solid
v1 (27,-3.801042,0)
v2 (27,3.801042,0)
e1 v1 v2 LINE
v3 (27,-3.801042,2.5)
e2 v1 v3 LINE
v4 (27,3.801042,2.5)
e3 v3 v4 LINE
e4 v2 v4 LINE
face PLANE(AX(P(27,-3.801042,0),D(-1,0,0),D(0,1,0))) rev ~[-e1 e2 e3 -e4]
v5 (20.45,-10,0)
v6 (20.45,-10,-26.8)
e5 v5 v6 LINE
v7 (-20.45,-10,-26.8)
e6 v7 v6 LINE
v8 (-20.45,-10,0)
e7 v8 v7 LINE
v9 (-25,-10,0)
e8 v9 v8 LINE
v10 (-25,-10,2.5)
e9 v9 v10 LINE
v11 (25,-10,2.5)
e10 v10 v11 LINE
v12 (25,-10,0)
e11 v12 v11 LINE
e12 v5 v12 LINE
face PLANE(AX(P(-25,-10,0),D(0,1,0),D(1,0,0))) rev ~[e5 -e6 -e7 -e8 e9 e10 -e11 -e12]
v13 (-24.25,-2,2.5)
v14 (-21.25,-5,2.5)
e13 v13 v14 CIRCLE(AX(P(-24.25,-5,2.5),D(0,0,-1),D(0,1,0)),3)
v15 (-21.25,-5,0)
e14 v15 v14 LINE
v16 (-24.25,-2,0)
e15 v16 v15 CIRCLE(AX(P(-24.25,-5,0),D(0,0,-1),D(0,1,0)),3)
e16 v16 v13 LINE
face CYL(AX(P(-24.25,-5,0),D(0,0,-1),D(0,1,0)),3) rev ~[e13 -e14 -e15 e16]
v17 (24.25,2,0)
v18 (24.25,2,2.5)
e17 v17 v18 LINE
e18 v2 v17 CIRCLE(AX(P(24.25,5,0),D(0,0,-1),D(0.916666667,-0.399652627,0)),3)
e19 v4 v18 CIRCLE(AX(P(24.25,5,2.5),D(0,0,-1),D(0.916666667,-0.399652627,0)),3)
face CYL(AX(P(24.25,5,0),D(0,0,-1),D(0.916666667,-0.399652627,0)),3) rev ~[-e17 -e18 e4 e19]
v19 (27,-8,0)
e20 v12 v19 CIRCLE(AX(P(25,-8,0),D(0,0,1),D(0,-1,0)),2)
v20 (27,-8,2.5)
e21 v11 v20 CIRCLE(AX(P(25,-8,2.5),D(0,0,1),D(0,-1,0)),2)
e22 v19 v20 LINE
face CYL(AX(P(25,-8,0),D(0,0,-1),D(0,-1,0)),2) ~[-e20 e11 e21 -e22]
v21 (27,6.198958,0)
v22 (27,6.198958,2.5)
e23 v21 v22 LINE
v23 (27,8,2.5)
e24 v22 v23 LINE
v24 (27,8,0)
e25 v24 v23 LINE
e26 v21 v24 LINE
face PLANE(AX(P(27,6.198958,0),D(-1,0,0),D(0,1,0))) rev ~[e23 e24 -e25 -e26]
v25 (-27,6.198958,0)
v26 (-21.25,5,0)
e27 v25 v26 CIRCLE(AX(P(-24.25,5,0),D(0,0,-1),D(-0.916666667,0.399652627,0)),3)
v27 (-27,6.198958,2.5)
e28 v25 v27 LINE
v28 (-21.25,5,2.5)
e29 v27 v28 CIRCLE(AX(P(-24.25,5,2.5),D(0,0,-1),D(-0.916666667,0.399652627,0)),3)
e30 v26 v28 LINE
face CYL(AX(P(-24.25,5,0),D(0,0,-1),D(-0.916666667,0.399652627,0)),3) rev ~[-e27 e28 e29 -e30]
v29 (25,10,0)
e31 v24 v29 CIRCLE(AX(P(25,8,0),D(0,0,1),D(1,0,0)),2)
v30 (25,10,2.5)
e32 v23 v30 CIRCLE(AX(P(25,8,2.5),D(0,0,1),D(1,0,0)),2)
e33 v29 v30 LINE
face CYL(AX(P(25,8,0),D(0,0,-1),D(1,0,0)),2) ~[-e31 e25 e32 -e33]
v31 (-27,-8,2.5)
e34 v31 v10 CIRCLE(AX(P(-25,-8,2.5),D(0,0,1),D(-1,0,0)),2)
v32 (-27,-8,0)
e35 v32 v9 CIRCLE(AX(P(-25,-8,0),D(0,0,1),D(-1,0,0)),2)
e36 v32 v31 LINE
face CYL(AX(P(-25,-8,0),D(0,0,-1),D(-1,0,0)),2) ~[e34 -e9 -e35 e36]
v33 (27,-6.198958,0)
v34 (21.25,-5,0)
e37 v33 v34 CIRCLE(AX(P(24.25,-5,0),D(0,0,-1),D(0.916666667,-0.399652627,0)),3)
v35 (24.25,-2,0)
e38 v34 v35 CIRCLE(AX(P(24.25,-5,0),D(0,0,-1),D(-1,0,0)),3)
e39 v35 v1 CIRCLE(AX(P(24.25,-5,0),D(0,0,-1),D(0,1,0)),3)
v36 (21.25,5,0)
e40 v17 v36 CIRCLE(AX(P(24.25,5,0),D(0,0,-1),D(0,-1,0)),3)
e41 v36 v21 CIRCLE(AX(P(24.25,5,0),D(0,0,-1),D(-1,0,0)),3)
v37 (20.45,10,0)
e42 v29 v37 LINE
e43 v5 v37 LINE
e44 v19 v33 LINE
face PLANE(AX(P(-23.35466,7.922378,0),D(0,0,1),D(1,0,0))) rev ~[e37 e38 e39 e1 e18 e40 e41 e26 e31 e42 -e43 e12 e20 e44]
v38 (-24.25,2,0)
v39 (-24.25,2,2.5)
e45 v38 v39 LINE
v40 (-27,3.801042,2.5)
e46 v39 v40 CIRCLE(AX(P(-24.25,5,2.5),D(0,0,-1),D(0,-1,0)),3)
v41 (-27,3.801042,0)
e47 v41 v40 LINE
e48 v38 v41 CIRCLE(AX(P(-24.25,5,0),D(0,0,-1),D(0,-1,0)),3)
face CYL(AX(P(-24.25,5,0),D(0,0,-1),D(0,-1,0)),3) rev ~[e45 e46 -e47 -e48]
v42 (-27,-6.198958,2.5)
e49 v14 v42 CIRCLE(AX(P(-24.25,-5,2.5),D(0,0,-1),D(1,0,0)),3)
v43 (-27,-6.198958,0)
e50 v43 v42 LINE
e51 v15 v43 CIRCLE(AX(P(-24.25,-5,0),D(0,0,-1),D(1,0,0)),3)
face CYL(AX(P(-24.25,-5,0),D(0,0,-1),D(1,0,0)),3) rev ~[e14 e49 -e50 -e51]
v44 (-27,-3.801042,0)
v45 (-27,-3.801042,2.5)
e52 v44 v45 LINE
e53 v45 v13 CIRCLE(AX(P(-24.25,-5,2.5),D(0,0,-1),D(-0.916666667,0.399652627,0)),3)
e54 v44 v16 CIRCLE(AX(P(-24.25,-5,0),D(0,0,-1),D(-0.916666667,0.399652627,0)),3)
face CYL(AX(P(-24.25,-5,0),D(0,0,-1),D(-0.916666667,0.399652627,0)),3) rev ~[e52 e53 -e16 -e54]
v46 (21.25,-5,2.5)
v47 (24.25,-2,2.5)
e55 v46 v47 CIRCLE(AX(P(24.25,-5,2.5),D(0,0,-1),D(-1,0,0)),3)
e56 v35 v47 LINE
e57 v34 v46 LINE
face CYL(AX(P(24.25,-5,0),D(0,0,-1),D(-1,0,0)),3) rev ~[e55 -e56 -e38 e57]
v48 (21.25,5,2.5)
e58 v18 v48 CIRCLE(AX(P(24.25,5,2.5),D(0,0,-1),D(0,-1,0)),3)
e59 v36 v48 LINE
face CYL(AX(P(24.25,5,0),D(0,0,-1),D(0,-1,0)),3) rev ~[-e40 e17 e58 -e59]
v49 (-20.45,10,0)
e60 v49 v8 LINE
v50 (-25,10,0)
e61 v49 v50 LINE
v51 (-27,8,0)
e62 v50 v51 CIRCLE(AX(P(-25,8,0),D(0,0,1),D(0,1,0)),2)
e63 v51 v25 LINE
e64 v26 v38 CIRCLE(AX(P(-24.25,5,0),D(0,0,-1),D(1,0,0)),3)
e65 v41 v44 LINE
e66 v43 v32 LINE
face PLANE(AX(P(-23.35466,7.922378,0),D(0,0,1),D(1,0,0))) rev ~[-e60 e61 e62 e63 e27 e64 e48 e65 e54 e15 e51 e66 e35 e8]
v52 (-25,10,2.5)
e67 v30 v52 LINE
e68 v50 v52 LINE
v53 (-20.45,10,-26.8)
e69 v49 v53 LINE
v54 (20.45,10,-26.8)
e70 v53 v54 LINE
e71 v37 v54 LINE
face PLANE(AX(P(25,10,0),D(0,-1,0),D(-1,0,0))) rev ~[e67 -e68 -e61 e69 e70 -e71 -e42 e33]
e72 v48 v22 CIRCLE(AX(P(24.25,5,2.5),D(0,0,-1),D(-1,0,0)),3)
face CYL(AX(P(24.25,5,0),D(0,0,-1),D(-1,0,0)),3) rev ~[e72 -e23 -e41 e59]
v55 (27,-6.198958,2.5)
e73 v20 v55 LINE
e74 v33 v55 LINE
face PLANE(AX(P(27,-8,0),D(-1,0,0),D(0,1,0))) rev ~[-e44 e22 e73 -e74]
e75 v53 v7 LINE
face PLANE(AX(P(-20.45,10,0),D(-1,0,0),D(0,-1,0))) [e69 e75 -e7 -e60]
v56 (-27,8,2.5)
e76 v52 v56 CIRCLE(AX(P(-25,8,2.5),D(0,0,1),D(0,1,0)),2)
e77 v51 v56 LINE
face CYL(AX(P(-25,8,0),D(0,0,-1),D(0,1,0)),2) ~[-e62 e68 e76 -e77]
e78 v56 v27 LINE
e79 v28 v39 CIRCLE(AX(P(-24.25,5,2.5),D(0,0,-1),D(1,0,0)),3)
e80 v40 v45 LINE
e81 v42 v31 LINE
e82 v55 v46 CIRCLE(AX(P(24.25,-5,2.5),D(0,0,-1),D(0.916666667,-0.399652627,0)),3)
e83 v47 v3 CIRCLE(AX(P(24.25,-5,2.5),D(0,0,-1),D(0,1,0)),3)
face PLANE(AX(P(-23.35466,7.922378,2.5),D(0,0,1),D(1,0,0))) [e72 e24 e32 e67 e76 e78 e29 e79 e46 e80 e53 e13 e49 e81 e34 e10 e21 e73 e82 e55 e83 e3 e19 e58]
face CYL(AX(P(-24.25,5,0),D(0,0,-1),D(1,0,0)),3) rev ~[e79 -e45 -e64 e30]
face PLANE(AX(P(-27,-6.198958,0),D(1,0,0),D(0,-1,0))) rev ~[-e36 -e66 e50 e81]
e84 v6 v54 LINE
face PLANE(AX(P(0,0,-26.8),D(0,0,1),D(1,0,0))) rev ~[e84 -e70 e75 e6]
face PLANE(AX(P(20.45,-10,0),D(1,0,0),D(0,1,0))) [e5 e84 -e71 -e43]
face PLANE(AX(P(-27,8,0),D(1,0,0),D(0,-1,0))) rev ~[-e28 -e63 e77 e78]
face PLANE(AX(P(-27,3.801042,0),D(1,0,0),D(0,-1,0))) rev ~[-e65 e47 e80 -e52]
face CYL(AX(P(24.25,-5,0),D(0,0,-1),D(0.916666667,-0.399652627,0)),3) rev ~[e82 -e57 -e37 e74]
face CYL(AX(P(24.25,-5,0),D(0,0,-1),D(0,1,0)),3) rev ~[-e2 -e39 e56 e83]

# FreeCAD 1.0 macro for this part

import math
import FreeCAD as App
import Part
import Sketcher

doc = App.newDocument("Part")
body = doc.addObject("PartDesign::Body", "Body")

# Sketch on XY plane
sketch1 = body.newObject("Sketcher::SketchObject", "Sketch")
sketch1.AttachmentSupport = (doc.getObject("XY_Plane"), [""])
sketch1.MapMode = "FlatFace"
sketch1.addGeometry([
    Part.LineSegment(App.Vector(-20, -10, 0), App.Vector(20, -10, 0)),
    Part.LineSegment(App.Vector(20, -10, 0), App.Vector(20, 10, 0)),
    Part.LineSegment(App.Vector(20, 10, 0), App.Vector(-20, 10, 0)),
    Part.LineSegment(App.Vector(-20, 10, 0), App.Vector(-20, -10, 0)),
], False)
sketch1.addConstraint([
    Sketcher.Constraint("Coincident", 0, 2, 1, 1),
    Sketcher.Constraint("Coincident", 1, 2, 2, 1),
    Sketcher.Constraint("Coincident", 2, 2, 3, 1),
    Sketcher.Constraint("Coincident", 3, 2, 0, 1),
    Sketcher.Constraint("Horizontal", 0),
    Sketcher.Constraint("Vertical", 1),
    Sketcher.Constraint("Horizontal", 2),
    Sketcher.Constraint("Vertical", 3),
    Sketcher.Constraint("Symmetric", 0, 2, 2, 2, -1, 1),
    Sketcher.Constraint("DistanceY", 1, 1, 1, 2, 20.0),
    Sketcher.Constraint("DistanceX", 0, 1, 0, 2, 40.9),
])
pad1 = body.newObject("PartDesign::Pad", "Pad")
pad1.Profile = sketch1
pad1.Length = 26.8
pad1.Reversed = True

# Sketch on XY plane
sketch2 = body.newObject("Sketcher::SketchObject", "Sketch001")
sketch2.AttachmentSupport = (doc.getObject("XY_Plane"), [""])
sketch2.MapMode = "FlatFace"
sketch2.addGeometry([
    Part.ArcOfCircle(Part.Circle(App.Vector(-25, 8, 0), App.Vector(0, 0, 1), 2), math.radians(90), math.radians(180)),  # 0
    Part.LineSegment(App.Vector(-27, 8, 0), App.Vector(-27, 6.2, 0)),  # 1
    Part.ArcOfCircle(Part.Circle(App.Vector(-24.2, 5, 0), App.Vector(0, 0, 1), 3), math.radians(0), math.radians(156)),  # 2
    Part.ArcOfCircle(Part.Circle(App.Vector(-24.2, 5, 0), App.Vector(0, 0, 1), 3), math.radians(-90), math.radians(0)),  # 3
    Part.ArcOfCircle(Part.Circle(App.Vector(-24.2, 5, 0), App.Vector(0, 0, 1), 3), math.radians(-156), math.radians(-90)),  # 4
    Part.LineSegment(App.Vector(-27, 3.8, 0), App.Vector(-27, -3.8, 0)),  # 5
    Part.ArcOfCircle(Part.Circle(App.Vector(-24.2, -5, 0), App.Vector(0, 0, 1), 3), math.radians(90), math.radians(156)),  # 6
    Part.ArcOfCircle(Part.Circle(App.Vector(-24.2, -5, 0), App.Vector(0, 0, 1), 3), math.radians(0), math.radians(90)),  # 7
    Part.ArcOfCircle(Part.Circle(App.Vector(-24.2, -5, 0), App.Vector(0, 0, 1), 3), math.radians(-156), math.radians(0)),  # 8
    Part.LineSegment(App.Vector(-27, -6.2, 0), App.Vector(-27, -8, 0)),  # 9
    Part.ArcOfCircle(Part.Circle(App.Vector(-25, -8, 0), App.Vector(0, 0, 1), 2), math.radians(180), math.radians(270)),  # 10
    Part.LineSegment(App.Vector(-25, -10, 0), App.Vector(25, -10, 0)),  # 11
    Part.ArcOfCircle(Part.Circle(App.Vector(25, -8, 0), App.Vector(0, 0, 1), 2), math.radians(-90), math.radians(0)),  # 12
    Part.LineSegment(App.Vector(27, -8, 0), App.Vector(27, -6.2, 0)),  # 13
    Part.ArcOfCircle(Part.Circle(App.Vector(24.2, -5, 0), App.Vector(0, 0, 1), 3), math.radians(180), math.radians(336)),  # 14
    Part.ArcOfCircle(Part.Circle(App.Vector(24.2, -5, 0), App.Vector(0, 0, 1), 3), math.radians(90), math.radians(180)),  # 15
    Part.ArcOfCircle(Part.Circle(App.Vector(24.2, -5, 0), App.Vector(0, 0, 1), 3), math.radians(24), math.radians(90)),  # 16
    Part.LineSegment(App.Vector(27, -3.8, 0), App.Vector(27, 3.8, 0)),  # 17
    Part.ArcOfCircle(Part.Circle(App.Vector(24.2, 5, 0), App.Vector(0, 0, 1), 3), math.radians(-90), math.radians(-24)),  # 18
    Part.ArcOfCircle(Part.Circle(App.Vector(24.2, 5, 0), App.Vector(0, 0, 1), 3), math.radians(180), math.radians(270)),  # 19
    Part.ArcOfCircle(Part.Circle(App.Vector(24.2, 5, 0), App.Vector(0, 0, 1), 3), math.radians(24), math.radians(180)),  # 20
    Part.LineSegment(App.Vector(27, 6.2, 0), App.Vector(27, 8, 0)),  # 21
    Part.ArcOfCircle(Part.Circle(App.Vector(25, 8, 0), App.Vector(0, 0, 1), 2), math.radians(0), math.radians(90)),  # 22
    Part.LineSegment(App.Vector(25, 10, 0), App.Vector(-25, 10, 0)),  # 23
], False)
sketch2.addConstraint([
    Sketcher.Constraint("Tangent", 0, 2, 1, 1),
    Sketcher.Constraint("Coincident", 1, 2, 2, 2),
    Sketcher.Constraint("Tangent", 2, 1, 3, 2),
    Sketcher.Constraint("Tangent", 3, 1, 4, 2),
    Sketcher.Constraint("Coincident", 4, 1, 5, 1),
    Sketcher.Constraint("Coincident", 5, 2, 6, 2),
    Sketcher.Constraint("Tangent", 6, 1, 7, 2),
    Sketcher.Constraint("Tangent", 7, 1, 8, 2),
    Sketcher.Constraint("Coincident", 8, 1, 9, 1),
    Sketcher.Constraint("Tangent", 9, 2, 10, 1),
    Sketcher.Constraint("Tangent", 10, 2, 11, 1),
    Sketcher.Constraint("Tangent", 11, 2, 12, 1),
    Sketcher.Constraint("Tangent", 12, 2, 13, 1),
    Sketcher.Constraint("Coincident", 13, 2, 14, 2),
    Sketcher.Constraint("Tangent", 14, 1, 15, 2),
    Sketcher.Constraint("Tangent", 15, 1, 16, 2),
    Sketcher.Constraint("Coincident", 16, 1, 17, 1),
    Sketcher.Constraint("Coincident", 17, 2, 18, 2),
    Sketcher.Constraint("Tangent", 18, 1, 19, 2),
    Sketcher.Constraint("Tangent", 19, 1, 20, 2),
    Sketcher.Constraint("Coincident", 20, 1, 21, 1),
    Sketcher.Constraint("Tangent", 21, 2, 22, 1),
    Sketcher.Constraint("Tangent", 22, 2, 23, 1),
    Sketcher.Constraint("Tangent", 23, 2, 0, 1),
    Sketcher.Constraint("Vertical", 1),
    Sketcher.Constraint("Vertical", 5),
    Sketcher.Constraint("Vertical", 9),
    Sketcher.Constraint("Horizontal", 11),
    Sketcher.Constraint("Vertical", 13),
    Sketcher.Constraint("Vertical", 17),
    Sketcher.Constraint("Vertical", 21),
    Sketcher.Constraint("Horizontal", 23),
    Sketcher.Constraint("Coincident", 4, 3, 2, 3),
    Sketcher.Constraint("Coincident", 8, 3, 6, 3),
    Sketcher.Constraint("Coincident", 16, 3, 14, 3),
    Sketcher.Constraint("Coincident", 20, 3, 18, 3),
    Sketcher.Constraint("Equal", 4, 6),
    Sketcher.Constraint("Equal", 0, 10),
    Sketcher.Constraint("Equal", 10, 12),
    Sketcher.Constraint("Equal", 8, 14),
    Sketcher.Constraint("Equal", 16, 18),
    Sketcher.Constraint("Equal", 12, 22),
    Sketcher.Constraint("Symmetric", 0, 3, 12, 3, -1, 1),
    Sketcher.Constraint("Symmetric", 2, 3, 14, 3, -1, 1),
    Sketcher.Constraint("Symmetric", 6, 3, 18, 3, -1, 1),
    Sketcher.Constraint("Symmetric", 6, 3, 14, 3, -2),
    Sketcher.Constraint("Horizontal", 20, 3, 2, 1),
    Sketcher.Constraint("Horizontal", 16, 3, 7, 1),
    Sketcher.Constraint("Horizontal", 8, 1, 13, 2),
    Sketcher.Constraint("Horizontal", 7, 1, 14, 1),
    Sketcher.Constraint("Horizontal", 5, 2, 16, 1),
    Sketcher.Constraint("Horizontal", 2, 1, 19, 1),
    Sketcher.Constraint("Horizontal", 1, 2, 20, 1),
    Sketcher.Constraint("Vertical", 8, 3, 3, 1),
    Sketcher.Constraint("Vertical", 1, 2, 4, 1),
    Sketcher.Constraint("Vertical", 3, 1, 6, 1),
    Sketcher.Constraint("Vertical", 20, 3, 15, 1),
    Sketcher.Constraint("Vertical", 15, 1, 18, 1),
    Sketcher.Constraint("Radius", 0, 2.0),
    Sketcher.Constraint("Radius", 2, 3.0),
    Sketcher.Constraint("DistanceX", 11, 1, 11, 2, 50.0),
    Sketcher.Constraint("DistanceY", -1, 1, 0, 3, 8.0),
    Sketcher.Constraint("DistanceY", -1, 1, 2, 3, 5.0),
    Sketcher.Constraint("DistanceX", 6, 3, 14, 3, 48.5),
])
pad2 = body.newObject("PartDesign::Pad", "Pad001")
pad2.Profile = sketch2
pad2.Length = 2.5

doc.recompute()
